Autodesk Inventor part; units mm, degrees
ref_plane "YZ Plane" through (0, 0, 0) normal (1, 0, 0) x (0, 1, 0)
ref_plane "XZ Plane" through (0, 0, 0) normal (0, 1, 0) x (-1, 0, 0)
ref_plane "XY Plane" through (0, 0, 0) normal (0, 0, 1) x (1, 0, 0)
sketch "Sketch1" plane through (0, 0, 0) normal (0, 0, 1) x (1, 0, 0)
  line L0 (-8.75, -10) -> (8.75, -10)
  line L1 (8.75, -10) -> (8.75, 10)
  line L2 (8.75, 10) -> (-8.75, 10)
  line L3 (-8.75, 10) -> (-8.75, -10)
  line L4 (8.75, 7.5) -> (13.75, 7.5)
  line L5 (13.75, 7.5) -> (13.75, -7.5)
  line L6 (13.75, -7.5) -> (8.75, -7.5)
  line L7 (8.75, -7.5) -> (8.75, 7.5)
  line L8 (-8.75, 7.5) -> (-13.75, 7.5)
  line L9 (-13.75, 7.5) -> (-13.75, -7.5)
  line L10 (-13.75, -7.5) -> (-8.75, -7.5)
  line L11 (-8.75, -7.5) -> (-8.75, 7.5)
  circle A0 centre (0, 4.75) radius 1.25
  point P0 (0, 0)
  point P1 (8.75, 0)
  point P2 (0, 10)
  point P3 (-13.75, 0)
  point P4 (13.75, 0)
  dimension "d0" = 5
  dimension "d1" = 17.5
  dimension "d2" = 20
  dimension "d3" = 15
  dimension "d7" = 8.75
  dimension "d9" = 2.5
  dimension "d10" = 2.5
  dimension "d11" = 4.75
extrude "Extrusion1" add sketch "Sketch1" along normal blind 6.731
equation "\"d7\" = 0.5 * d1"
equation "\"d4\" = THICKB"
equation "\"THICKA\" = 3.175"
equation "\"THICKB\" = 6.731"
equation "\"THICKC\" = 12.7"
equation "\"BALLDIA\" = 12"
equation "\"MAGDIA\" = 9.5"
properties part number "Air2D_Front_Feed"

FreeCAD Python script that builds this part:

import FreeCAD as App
import Part
import Sketcher

V = App.Vector


def add_polygon(sketch, points):
    """Adds a closed chain of lines whose ends are joined by coincident constraints."""
    first, n = sketch.GeometryCount, len(points)
    for a, b in zip(points, points[1:] + points[:1]):
        sketch.addGeometry(Part.LineSegment(App.Vector(*a, 0), App.Vector(*b, 0)), False)
    for i in range(n):
        sketch.addConstraint(Sketcher.Constraint("Coincident", first + i, 2, first + (i + 1) % n, 1))

doc = App.newDocument("Part")
params = doc.addObject("Spreadsheet::Sheet", "Params")
for row, (alias, value) in enumerate([
    ("sketch1_diameter", "2.5 mm"),
    ("sketch1_width", "5 mm"),
    ("sketch1_height", "15 mm"),
    ("sketch1_width2", "17.5 mm"),
    ("sketch1_height2", "2.5 mm"),
    ("pad1_length", "6.731 mm"),
], start=1):
    params.set(f"A{row}", alias)
    params.set(f"B{row}", "=" + value)
    params.setAlias(f"B{row}", alias)

body = doc.addObject("PartDesign::Body", "Body")

sketch1 = body.newObject("Sketcher::SketchObject", "Sketch")
sketch1.AttachmentSupport = (doc.getObject("XY_Plane"), [""])
sketch1.MapMode = "FlatFace"
add_polygon(sketch1, [(-8.8, -7.5), (-8.8, -10), (8.8, -10), (8.8, -7.5), (13.8, -7.5), (13.8, 7.5), (8.8, 7.5), (8.8, 10), (-8.8, 10), (-8.8, 7.5), (-13.8, 7.5), (-13.8, -7.5)])
sketch1.addGeometry(Part.Circle(V(0, 4.8, 0), V(0, 0, 1), 1.2), False)
sketch1.addConstraint(Sketcher.Constraint("Vertical", 0))
sketch1.addConstraint(Sketcher.Constraint("Horizontal", 1))
sketch1.addConstraint(Sketcher.Constraint("Vertical", 2))
sketch1.addConstraint(Sketcher.Constraint("Horizontal", 3))
sketch1.addConstraint(Sketcher.Constraint("Vertical", 4))
sketch1.addConstraint(Sketcher.Constraint("Horizontal", 5))
sketch1.addConstraint(Sketcher.Constraint("Vertical", 6))
sketch1.addConstraint(Sketcher.Constraint("Horizontal", 7))
sketch1.addConstraint(Sketcher.Constraint("Vertical", 8))
sketch1.addConstraint(Sketcher.Constraint("Horizontal", 9))
sketch1.addConstraint(Sketcher.Constraint("Vertical", 10))
sketch1.addConstraint(Sketcher.Constraint("Horizontal", 11))
sketch1.addConstraint(Sketcher.Constraint("Symmetric", 0, 2, 6, 2, -1, 1))
sketch1.addConstraint(Sketcher.Constraint("Symmetric", 2, 2, 8, 2, -1, 1))
sketch1.addConstraint(Sketcher.Constraint("Symmetric", 4, 2, 10, 2, -1, 1))
sketch1.addConstraint(Sketcher.Constraint("Symmetric", 5, 2, 8, 2, -2))
sketch1.addConstraint(Sketcher.Constraint("PointOnObject", 12, 3, -2))
sketch1.addConstraint(Sketcher.Constraint("Diameter", 12, 2.5))
sketch1.addConstraint(Sketcher.Constraint("DistanceX", 3, 1, 3, 2, 5.0))
sketch1.addConstraint(Sketcher.Constraint("DistanceY", 4, 1, 4, 2, 15.0))
sketch1.addConstraint(Sketcher.Constraint("DistanceX", 1, 1, 1, 2, 17.5))
sketch1.addConstraint(Sketcher.Constraint("DistanceY", 0, 2, 0, 1, 2.5))
sketch1.addConstraint(Sketcher.Constraint("DistanceY", -1, 1, 12, 3, 4.75))
sketch1.setExpression("Constraints[29]", "Params.sketch1_diameter")
sketch1.setExpression("Constraints[30]", "Params.sketch1_width")
sketch1.setExpression("Constraints[31]", "Params.sketch1_height")
sketch1.setExpression("Constraints[32]", "Params.sketch1_width2")
sketch1.setExpression("Constraints[33]", "Params.sketch1_height2")
pad1 = body.newObject("PartDesign::Pad", "Pad")
pad1.Profile = sketch1
pad1.setExpression("Length", "Params.pad1_length")

doc.recompute()
